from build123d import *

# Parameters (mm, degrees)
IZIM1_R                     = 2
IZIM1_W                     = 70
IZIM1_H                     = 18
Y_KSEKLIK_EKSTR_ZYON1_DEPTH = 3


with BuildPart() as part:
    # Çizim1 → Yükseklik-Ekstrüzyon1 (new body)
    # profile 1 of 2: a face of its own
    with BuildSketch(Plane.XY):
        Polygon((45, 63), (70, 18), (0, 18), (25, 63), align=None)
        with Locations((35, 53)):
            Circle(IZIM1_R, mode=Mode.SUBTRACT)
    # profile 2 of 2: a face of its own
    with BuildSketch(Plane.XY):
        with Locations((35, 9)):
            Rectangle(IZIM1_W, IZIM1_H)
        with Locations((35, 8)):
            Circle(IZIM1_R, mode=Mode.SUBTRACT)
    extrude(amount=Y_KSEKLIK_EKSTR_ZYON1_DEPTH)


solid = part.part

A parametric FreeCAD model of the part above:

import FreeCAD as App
import Part
import Sketcher


def add_polygon(sketch, points):
    """Adds a closed chain of lines whose ends are joined by coincident constraints."""
    first, n = sketch.GeometryCount, len(points)
    for a, b in zip(points, points[1:] + points[:1]):
        sketch.addGeometry(Part.LineSegment(App.Vector(*a, 0), App.Vector(*b, 0)), False)
    for i in range(n):
        sketch.addConstraint(Sketcher.Constraint("Coincident", first + i, 2, first + (i + 1) % n, 1))

doc = App.newDocument("Part")
body = doc.addObject("PartDesign::Body", "Body")

sketch1 = body.newObject("Sketcher::SketchObject", "Sketch")
sketch1.AttachmentSupport = (doc.getObject("XY_Plane"), [""])
sketch1.MapMode = "FlatFace"
add_polygon(sketch1, [(70, 18), (45, 63), (25, 63), (0, 18), (0, 0), (70, 0)])
sketch1.addGeometry(Part.Circle(App.Vector(35, 53, 0), App.Vector(0, 0, 1), 2), False)
sketch1.addGeometry(Part.Circle(App.Vector(35, 8, 0), App.Vector(0, 0, 1), 2), False)
sketch1.addConstraint([
    Sketcher.Constraint("Horizontal", 1),
    Sketcher.Constraint("Vertical", 3),
    Sketcher.Constraint("Horizontal", 4),
    Sketcher.Constraint("Vertical", 5),
    Sketcher.Constraint("Coincident", 3, 2, -1, 1),
    Sketcher.Constraint("Equal", 6, 7),
    Sketcher.Constraint("Horizontal", 2, 2, 5, 2),
    Sketcher.Constraint("Vertical", 6, 3, 7, 3),
    Sketcher.Constraint("Equal", 0, 2),
    Sketcher.Constraint("Diameter", 6, 4.0),
    Sketcher.Constraint("DistanceX", 1, 2, 1, 1, 20.0),
    Sketcher.Constraint("DistanceX", 4, 1, 4, 2, 70.0),
    Sketcher.Constraint("DistanceY", 3, 2, 3, 1, 18.0),
    Sketcher.Constraint("DistanceX", -1, 1, 6, 3, 35.0),
    Sketcher.Constraint("DistanceY", -1, 1, 6, 3, 53.0),
    Sketcher.Constraint("DistanceY", -1, 1, 7, 3, 8.0),
    Sketcher.Constraint("DistanceY", -1, 1, 0, 2, 63.0),
])
pad1 = body.newObject("PartDesign::Pad", "Pad")
pad1.Profile = sketch1
pad1.Length = 3

doc.recompute()
